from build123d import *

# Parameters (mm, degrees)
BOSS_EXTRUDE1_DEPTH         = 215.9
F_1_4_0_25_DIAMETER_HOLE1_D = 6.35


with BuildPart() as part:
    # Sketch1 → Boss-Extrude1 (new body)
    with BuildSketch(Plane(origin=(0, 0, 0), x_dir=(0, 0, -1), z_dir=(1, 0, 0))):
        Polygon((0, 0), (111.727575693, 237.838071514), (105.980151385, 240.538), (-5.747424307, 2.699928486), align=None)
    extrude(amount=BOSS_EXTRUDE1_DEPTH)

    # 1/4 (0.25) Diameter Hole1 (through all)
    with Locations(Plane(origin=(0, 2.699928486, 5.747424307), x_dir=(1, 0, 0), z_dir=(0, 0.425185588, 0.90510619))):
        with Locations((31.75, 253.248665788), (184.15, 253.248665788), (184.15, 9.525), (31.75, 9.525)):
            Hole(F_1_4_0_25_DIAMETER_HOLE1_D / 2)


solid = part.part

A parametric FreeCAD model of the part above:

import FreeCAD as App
import Part
import Sketcher

V = App.Vector
Q = App.Units.Quantity

doc = App.newDocument("Part")
params = doc.addObject("Spreadsheet::Sheet", "Params")
for row, (alias, value) in enumerate([
    ("sketch1_length", "0.25 in"),
    ("pad1_length", "8.5 in"),
    ("sketch2_diameter", "0.25 in"),
    ("hole_diameter", "0.25 in"),
], start=1):
    params.set(f"A{row}", alias)
    params.set(f"B{row}", "=" + value)
    params.setAlias(f"B{row}", alias)

body = doc.addObject("PartDesign::Body", "Body")

sketch1 = body.newObject("Sketcher::SketchObject", "Sketch")
sketch1.AttachmentSupport = (doc.getObject("YZ_Plane"), [""])
sketch1.MapMode = "FlatFace"
sketch1.addGeometry([
    Part.LineSegment(V(0, 0, 0), V(238, -112, 0)),
    Part.LineSegment(V(238, -112, 0), V(241, -106, 0)),
    Part.LineSegment(V(241, -106, 0), V(3, 6, 0)),
    Part.LineSegment(V(3, 6, 0), V(0, 0, 0)),
], False)
sketch1.addConstraint([
    Sketcher.Constraint("Coincident", 0, 2, 1, 1),
    Sketcher.Constraint("Coincident", 1, 2, 2, 1),
    Sketcher.Constraint("Coincident", 2, 2, 3, 1),
    Sketcher.Constraint("Coincident", 3, 2, 0, 1),
    Sketcher.Constraint("Coincident", 3, 2, -1, 1),
    Sketcher.Constraint("Perpendicular", 0, 1),
    Sketcher.Constraint("Perpendicular", 1, 2),
    Sketcher.Constraint("Perpendicular", 2, 3),
    Sketcher.Constraint("Distance", 1, Q("0.25 in")),
    Sketcher.Constraint("DistanceX", -1, 1, 1, 2, Q("9.47 in")),
    Sketcher.Constraint("DistanceY", 0, 2, 2, 2, Q("4.625 in")),
])
sketch1.setExpression("Constraints[8]", "Params.sketch1_length")
pad1 = body.newObject("PartDesign::Pad", "Pad")
pad1.Profile = sketch1
pad1.setExpression("Length", "Params.pad1_length")

sketch2 = body.newObject("Sketcher::SketchObject", "Sketch001")
sketch2.Placement = App.Placement(V(0, 2.699928, 5.747424), App.Rotation(V(1, 0, 0), V(0, 0.90510619, -0.425185588), V(0, 0.425185588, 0.90510619), "ZXY"))
sketch2.addGeometry([
    Part.Circle(V(31.8, 253.2, 0), V(0, 0, 1), 3.2),
    Part.Circle(V(184.2, 253.2, 0), V(0, 0, 1), 3.2),
    Part.Circle(V(184.2, 9.5, 0), V(0, 0, 1), 3.2),
    Part.Circle(V(31.8, 9.5, 0), V(0, 0, 1), 3.2),
], False)
sketch2.addConstraint([
    Sketcher.Constraint("Equal", 0, 1),
    Sketcher.Constraint("Equal", 1, 2),
    Sketcher.Constraint("Equal", 2, 3),
    Sketcher.Constraint("Horizontal", 0, 3, 1, 3),
    Sketcher.Constraint("Horizontal", 2, 3, 3, 3),
    Sketcher.Constraint("Vertical", 1, 3, 2, 3),
    Sketcher.Constraint("Vertical", 0, 3, 3, 3),
    Sketcher.Constraint("Diameter", 0, Q("0.25 in")),
    Sketcher.Constraint("DistanceX", 0, 3, 1, 3, Q("6 in")),
    Sketcher.Constraint("DistanceX", -1, 1, 0, 3, Q("1.25 in")),
    Sketcher.Constraint("DistanceY", -1, 1, 2, 3, Q("0.375 in")),
    Sketcher.Constraint("DistanceY", -1, 1, 0, 3, Q("253.248666 mm")),
])
sketch2.setExpression("Constraints[7]", "Params.sketch2_diameter")
doc.recompute()
hole = body.newObject("PartDesign::Hole", "Hole")
hole.Profile = sketch2
hole.ThreadType = "None"
hole.setExpression("Diameter", "Params.hole_diameter")
hole.DepthType = "ThroughAll"

doc.recompute()
